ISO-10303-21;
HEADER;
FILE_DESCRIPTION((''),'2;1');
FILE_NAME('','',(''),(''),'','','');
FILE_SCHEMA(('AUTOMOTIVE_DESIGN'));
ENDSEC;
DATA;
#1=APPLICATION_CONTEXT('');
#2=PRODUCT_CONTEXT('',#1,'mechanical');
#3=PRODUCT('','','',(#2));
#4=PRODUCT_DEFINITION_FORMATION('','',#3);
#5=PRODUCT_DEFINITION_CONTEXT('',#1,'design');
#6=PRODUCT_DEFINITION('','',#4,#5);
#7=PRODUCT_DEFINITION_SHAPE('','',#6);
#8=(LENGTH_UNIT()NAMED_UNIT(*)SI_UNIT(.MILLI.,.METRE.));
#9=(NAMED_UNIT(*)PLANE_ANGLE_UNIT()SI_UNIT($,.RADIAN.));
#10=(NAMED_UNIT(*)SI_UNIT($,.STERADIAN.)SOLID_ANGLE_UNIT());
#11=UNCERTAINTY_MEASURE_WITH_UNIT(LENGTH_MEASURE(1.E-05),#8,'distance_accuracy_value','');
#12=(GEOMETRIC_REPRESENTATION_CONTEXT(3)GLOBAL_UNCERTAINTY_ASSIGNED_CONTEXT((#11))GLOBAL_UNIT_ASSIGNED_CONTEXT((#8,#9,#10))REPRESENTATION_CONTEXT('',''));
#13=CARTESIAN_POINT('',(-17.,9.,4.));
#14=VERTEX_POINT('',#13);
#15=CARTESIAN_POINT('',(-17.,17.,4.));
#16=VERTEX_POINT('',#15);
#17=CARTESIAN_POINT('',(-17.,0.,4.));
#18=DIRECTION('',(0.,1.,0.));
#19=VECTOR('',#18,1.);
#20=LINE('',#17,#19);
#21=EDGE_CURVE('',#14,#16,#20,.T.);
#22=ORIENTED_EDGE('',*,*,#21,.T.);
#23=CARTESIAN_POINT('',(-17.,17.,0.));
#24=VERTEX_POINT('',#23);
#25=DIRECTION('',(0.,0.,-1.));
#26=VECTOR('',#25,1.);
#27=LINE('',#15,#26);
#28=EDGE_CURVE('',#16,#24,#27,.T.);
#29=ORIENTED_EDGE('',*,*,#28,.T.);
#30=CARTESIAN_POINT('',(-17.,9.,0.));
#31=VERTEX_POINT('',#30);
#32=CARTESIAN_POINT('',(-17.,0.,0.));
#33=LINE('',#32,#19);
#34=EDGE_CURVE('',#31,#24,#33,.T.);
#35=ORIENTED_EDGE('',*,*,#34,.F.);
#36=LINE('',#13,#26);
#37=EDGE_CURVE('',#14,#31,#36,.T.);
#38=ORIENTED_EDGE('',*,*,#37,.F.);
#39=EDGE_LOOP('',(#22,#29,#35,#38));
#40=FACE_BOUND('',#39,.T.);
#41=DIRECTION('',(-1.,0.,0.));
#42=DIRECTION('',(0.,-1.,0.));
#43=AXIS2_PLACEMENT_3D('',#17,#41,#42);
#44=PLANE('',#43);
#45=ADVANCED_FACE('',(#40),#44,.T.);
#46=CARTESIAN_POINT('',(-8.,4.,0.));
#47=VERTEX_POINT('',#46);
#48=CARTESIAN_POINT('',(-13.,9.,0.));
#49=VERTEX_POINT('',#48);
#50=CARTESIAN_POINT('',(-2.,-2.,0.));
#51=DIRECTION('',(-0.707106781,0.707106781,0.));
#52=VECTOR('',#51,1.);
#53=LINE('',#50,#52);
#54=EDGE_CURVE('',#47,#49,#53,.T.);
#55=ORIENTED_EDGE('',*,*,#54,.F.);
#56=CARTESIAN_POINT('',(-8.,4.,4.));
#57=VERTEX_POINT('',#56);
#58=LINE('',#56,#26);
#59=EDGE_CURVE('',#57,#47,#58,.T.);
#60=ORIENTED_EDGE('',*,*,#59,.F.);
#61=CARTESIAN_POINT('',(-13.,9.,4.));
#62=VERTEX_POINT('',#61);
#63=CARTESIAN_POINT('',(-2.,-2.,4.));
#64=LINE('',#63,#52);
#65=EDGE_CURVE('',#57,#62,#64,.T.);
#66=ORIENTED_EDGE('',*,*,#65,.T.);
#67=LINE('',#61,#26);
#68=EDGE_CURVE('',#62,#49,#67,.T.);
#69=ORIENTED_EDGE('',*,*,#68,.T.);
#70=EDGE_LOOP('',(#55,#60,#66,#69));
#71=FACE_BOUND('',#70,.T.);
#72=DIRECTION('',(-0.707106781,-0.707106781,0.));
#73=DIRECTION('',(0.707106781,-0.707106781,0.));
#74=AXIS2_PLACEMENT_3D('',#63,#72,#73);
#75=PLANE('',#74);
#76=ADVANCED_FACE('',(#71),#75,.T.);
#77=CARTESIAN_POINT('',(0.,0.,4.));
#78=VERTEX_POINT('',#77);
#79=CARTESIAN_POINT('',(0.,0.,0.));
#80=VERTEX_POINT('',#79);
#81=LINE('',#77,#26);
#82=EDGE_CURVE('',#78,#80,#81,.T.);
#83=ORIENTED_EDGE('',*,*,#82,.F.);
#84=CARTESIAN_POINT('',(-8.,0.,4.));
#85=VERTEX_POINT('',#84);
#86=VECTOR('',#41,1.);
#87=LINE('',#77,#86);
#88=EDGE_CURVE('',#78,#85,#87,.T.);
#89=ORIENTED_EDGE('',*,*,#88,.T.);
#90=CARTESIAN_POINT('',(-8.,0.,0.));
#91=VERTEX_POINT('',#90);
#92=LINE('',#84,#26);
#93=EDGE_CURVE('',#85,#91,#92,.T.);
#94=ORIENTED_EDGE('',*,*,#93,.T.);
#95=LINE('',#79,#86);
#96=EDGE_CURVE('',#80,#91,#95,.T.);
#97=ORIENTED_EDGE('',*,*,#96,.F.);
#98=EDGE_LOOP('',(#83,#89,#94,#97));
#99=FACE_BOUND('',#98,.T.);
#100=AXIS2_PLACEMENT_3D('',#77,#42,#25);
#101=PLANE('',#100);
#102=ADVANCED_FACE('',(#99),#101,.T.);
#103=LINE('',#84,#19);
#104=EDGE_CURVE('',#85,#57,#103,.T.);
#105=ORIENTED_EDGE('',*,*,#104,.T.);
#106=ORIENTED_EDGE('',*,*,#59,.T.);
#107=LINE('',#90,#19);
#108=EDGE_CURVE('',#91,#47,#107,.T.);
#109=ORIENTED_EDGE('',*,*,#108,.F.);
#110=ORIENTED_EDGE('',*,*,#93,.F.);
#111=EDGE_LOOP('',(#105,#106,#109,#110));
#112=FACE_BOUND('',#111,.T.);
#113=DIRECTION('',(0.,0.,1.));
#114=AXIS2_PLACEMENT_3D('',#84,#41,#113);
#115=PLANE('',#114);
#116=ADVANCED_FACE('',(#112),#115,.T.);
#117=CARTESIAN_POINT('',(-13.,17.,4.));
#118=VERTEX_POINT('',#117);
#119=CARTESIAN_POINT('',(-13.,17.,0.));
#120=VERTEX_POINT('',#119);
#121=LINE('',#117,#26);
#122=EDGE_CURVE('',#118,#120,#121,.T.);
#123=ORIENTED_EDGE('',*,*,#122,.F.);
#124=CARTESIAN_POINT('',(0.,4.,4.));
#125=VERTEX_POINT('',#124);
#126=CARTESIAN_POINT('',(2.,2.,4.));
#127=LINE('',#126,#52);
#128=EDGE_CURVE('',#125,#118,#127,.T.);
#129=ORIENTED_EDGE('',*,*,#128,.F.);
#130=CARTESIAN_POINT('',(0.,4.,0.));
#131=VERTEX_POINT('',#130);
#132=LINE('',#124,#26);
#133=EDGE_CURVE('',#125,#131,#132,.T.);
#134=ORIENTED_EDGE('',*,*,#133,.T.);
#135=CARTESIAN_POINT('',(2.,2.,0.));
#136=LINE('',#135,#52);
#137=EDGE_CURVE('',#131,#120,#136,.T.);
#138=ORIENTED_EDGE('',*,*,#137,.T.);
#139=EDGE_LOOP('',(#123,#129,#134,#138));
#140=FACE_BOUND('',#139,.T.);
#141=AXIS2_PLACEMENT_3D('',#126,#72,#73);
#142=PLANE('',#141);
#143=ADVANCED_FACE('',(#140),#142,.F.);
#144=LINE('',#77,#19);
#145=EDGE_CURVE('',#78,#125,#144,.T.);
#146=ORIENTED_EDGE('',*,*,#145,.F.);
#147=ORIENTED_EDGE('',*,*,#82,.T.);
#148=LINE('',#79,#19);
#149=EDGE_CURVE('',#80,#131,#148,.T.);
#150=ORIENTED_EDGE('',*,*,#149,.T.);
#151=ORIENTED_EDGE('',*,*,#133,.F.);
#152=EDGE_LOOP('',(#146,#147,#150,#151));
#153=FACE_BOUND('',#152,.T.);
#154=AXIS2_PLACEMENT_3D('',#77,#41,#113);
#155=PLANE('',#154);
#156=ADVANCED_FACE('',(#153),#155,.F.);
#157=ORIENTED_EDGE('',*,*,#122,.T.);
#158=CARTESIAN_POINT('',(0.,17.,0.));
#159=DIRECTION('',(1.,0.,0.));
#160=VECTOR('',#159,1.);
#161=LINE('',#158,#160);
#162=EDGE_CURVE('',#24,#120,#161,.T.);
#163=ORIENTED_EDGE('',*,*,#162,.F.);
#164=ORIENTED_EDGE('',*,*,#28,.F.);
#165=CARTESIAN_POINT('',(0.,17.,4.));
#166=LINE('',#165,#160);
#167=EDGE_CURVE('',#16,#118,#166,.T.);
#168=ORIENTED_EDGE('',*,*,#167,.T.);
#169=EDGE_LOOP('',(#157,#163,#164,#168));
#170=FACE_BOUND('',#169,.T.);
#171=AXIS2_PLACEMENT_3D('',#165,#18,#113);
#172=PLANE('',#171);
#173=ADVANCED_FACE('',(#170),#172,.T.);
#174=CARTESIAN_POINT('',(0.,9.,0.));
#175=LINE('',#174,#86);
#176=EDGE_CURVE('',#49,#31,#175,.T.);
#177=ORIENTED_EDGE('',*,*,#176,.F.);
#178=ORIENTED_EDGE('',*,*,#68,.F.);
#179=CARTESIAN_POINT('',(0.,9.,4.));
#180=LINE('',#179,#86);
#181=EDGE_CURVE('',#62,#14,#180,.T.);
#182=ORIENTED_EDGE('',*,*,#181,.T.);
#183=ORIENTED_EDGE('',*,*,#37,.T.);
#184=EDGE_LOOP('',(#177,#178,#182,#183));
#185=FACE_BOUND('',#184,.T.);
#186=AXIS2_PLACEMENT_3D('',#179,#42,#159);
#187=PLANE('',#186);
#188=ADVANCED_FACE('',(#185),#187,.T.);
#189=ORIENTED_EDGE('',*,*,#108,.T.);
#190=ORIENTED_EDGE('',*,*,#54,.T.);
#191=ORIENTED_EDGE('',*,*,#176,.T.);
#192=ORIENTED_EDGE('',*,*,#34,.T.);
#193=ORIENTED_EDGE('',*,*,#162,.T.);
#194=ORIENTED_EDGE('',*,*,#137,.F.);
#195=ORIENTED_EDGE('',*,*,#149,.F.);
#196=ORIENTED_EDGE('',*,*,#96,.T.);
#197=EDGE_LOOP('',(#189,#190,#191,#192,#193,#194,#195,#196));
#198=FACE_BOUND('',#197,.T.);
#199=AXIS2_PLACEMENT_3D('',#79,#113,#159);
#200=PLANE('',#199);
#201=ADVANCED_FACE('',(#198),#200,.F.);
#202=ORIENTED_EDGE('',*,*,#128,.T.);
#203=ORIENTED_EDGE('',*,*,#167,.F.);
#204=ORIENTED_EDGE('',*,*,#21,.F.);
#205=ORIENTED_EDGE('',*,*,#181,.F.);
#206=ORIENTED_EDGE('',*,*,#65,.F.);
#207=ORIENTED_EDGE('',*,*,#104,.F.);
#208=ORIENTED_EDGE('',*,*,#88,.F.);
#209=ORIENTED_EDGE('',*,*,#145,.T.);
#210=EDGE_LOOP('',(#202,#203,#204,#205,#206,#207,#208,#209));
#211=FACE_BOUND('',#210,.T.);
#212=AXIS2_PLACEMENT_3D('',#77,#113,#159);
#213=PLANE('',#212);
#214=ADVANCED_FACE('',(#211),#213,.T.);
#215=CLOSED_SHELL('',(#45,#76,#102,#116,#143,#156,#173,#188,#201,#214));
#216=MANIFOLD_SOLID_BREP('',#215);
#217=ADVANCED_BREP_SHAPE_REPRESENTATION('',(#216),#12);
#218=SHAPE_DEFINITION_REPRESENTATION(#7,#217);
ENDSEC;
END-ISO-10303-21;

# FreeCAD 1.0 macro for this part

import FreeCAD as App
import Part
import Sketcher
from FreeCAD import Vector
Q = App.Units.Quantity

doc = App.newDocument("Part")
params = doc.addObject("Spreadsheet::Sheet", "Params")
for row, (alias, value) in enumerate([
    ("sketch1_width", "8 mm"),
    ("sketch1_width2", "4 mm"),
    ("pad1_length", "4 mm"),
], start=1):
    params.set(f"A{row}", alias)
    params.set(f"B{row}", "=" + value)
    params.setAlias(f"B{row}", alias)

body = doc.addObject("PartDesign::Body", "Body")

# Sketch on XY plane
sketch1 = body.newObject("Sketcher::SketchObject", "Sketch")
sketch1.AttachmentSupport = (doc.getObject("XY_Plane"), [""])
sketch1.MapMode = "FlatFace"
sketch1.addGeometry([
    Part.LineSegment(Vector(-13, 9, 0), Vector(-8, 4, 0)),  # 0
    Part.LineSegment(Vector(-8, 4, 0), Vector(-8, 0, 0)),  # 1
    Part.LineSegment(Vector(-8, 0, 0), Vector(0, 0, 0)),  # 2
    Part.LineSegment(Vector(0, 0, 0), Vector(0, 4, 0)),  # 3
    Part.LineSegment(Vector(0, 4, 0), Vector(-13, 17, 0)),  # 4
    Part.LineSegment(Vector(-13, 17, 0), Vector(-17, 17, 0)),  # 5
    Part.LineSegment(Vector(-17, 17, 0), Vector(-17, 9, 0)),  # 6
    Part.LineSegment(Vector(-17, 9, 0), Vector(-13, 9, 0)),  # 7
], False)
sketch1.addConstraint([
    Sketcher.Constraint("Coincident", 0, 2, 1, 1),
    Sketcher.Constraint("Coincident", 1, 2, 2, 1),
    Sketcher.Constraint("Coincident", 2, 2, 3, 1),
    Sketcher.Constraint("Coincident", 3, 2, 4, 1),
    Sketcher.Constraint("Coincident", 4, 2, 5, 1),
    Sketcher.Constraint("Coincident", 5, 2, 6, 1),
    Sketcher.Constraint("Coincident", 6, 2, 7, 1),
    Sketcher.Constraint("Coincident", 7, 2, 0, 1),
    Sketcher.Constraint("Vertical", 1),
    Sketcher.Constraint("Horizontal", 2),
    Sketcher.Constraint("Vertical", 3),
    Sketcher.Constraint("Horizontal", 5),
    Sketcher.Constraint("Vertical", 6),
    Sketcher.Constraint("Horizontal", 7),
    Sketcher.Constraint("Coincident", 2, 2, -1, 1),
    Sketcher.Constraint("Parallel", 0, 4),
    Sketcher.Constraint("Horizontal", 0, 2, 3, 2),
    Sketcher.Constraint("Vertical", 4, 2, 7, 2),
    Sketcher.Constraint("Equal", 7, 1),
    Sketcher.Constraint("Equal", 2, 6),
    Sketcher.Constraint("DistanceX", 2, 1, 2, 2, Q("8 mm")),
    Sketcher.Constraint("DistanceX", 5, 2, 5, 1, Q("4 mm")),
    Sketcher.Constraint("DistanceX", 4, 2, -1, 1, Q("13 mm")),
])
sketch1.setExpression("Constraints[20]", "Params.sketch1_width")
sketch1.setExpression("Constraints[21]", "Params.sketch1_width2")
pad1 = body.newObject("PartDesign::Pad", "Pad")
pad1.Profile = sketch1
pad1.setExpression("Length", "Params.pad1_length")

doc.recompute()
